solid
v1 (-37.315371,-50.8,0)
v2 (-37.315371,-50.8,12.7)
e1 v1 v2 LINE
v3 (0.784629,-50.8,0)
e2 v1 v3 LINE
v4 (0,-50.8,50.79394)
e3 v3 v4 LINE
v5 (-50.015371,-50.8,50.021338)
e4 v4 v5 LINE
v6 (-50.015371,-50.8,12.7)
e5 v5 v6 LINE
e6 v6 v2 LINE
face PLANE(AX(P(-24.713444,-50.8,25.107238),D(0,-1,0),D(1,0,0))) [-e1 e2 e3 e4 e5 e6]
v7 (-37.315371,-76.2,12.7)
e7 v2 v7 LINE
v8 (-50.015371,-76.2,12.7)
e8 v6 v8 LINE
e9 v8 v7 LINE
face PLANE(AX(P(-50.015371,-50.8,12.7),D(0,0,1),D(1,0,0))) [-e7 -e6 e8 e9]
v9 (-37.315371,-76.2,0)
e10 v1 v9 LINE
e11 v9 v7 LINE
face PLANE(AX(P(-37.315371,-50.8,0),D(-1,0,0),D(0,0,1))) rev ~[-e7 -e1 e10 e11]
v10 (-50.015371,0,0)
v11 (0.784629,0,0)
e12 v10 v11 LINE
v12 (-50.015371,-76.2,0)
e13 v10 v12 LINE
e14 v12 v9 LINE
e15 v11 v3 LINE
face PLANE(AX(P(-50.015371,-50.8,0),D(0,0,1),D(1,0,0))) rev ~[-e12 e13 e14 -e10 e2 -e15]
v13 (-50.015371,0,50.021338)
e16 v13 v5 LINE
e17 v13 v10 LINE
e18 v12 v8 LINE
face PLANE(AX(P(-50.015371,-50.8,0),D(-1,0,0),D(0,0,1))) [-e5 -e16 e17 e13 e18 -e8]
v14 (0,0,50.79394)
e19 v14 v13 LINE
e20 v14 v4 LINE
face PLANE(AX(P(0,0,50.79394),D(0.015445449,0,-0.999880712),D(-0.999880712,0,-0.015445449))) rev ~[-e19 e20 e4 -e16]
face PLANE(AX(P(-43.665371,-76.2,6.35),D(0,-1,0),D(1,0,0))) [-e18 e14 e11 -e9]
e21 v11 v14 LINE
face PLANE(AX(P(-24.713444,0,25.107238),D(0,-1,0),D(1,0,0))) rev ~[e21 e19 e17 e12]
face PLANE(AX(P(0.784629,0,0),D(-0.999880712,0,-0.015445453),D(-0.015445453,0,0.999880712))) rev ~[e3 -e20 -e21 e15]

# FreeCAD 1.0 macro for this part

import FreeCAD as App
import Part
import Sketcher

V = App.Vector
Q = App.Units.Quantity


def add_polygon(sketch, points):
    """Adds a closed chain of lines whose ends are joined by coincident constraints."""
    first, n = sketch.GeometryCount, len(points)
    for a, b in zip(points, points[1:] + points[:1]):
        sketch.addGeometry(Part.LineSegment(App.Vector(*a, 0), App.Vector(*b, 0)), False)
    for i in range(n):
        sketch.addConstraint(Sketcher.Constraint("Coincident", first + i, 2, first + (i + 1) % n, 1))

doc = App.newDocument("Part")
body = doc.addObject("PartDesign::Body", "Body")

# Sketch on XZ plane
sketch1 = body.newObject("Sketcher::SketchObject", "Sketch")
sketch1.AttachmentSupport = (doc.getObject("XZ_Plane"), [""])
sketch1.MapMode = "FlatFace"
add_polygon(sketch1, [(0, 51), (-50, 50), (-50, 0), (1, 0)])  # lines 0-3
sketch1.addConstraint([
    Sketcher.Constraint("Vertical", 1),
    Sketcher.Constraint("Horizontal", 2),
    Sketcher.Constraint("PointOnObject", 1, 2, -1),
    Sketcher.Constraint("PointOnObject", 3, 2, -2),
    Sketcher.Constraint("Perpendicular", 0, 3),
    Sketcher.Constraint("DistanceX", 2, 1, 2, 2, Q("2 in")),
    Sketcher.Constraint("Distance", 3, Q("2 in")),
    Sketcher.Constraint("DistanceY", 0, 2, 3, 2, 0.772602),
])
pad1 = body.newObject("PartDesign::Pad", "Pad")
pad1.Profile = sketch1
pad1.Length = Q("2 in")

# Sketch on XZ plane
sketch2 = body.newObject("Sketcher::SketchObject", "Sketch001")
sketch2.AttachmentSupport = (doc.getObject("XZ_Plane"), [""])
sketch2.MapMode = "FlatFace"
sketch2.AttachmentOffset = App.Placement(V(0, 0, 2 * 25.4), App.Rotation())
add_polygon(sketch2, [(-50, 13), (-50, 0), (-37, 0), (-37, 13)])  # lines 0-3
sketch2.addConstraint([
    Sketcher.Constraint("Vertical", 0),
    Sketcher.Constraint("Horizontal", 1),
    Sketcher.Constraint("Vertical", 2),
    Sketcher.Constraint("Horizontal", 3),
    Sketcher.Constraint("PointOnObject", 0, 2, -1),
    Sketcher.Constraint("Equal", 3, 0),
    Sketcher.Constraint("DistanceX", 1, 1, 1, 2, Q("0.5 in")),
    Sketcher.Constraint("DistanceX", 0, 2, -1, 1, 50.015371),
])
pad2 = body.newObject("PartDesign::Pad", "Pad001")
pad2.Profile = sketch2
pad2.Length = Q("1 in")

doc.recompute()
